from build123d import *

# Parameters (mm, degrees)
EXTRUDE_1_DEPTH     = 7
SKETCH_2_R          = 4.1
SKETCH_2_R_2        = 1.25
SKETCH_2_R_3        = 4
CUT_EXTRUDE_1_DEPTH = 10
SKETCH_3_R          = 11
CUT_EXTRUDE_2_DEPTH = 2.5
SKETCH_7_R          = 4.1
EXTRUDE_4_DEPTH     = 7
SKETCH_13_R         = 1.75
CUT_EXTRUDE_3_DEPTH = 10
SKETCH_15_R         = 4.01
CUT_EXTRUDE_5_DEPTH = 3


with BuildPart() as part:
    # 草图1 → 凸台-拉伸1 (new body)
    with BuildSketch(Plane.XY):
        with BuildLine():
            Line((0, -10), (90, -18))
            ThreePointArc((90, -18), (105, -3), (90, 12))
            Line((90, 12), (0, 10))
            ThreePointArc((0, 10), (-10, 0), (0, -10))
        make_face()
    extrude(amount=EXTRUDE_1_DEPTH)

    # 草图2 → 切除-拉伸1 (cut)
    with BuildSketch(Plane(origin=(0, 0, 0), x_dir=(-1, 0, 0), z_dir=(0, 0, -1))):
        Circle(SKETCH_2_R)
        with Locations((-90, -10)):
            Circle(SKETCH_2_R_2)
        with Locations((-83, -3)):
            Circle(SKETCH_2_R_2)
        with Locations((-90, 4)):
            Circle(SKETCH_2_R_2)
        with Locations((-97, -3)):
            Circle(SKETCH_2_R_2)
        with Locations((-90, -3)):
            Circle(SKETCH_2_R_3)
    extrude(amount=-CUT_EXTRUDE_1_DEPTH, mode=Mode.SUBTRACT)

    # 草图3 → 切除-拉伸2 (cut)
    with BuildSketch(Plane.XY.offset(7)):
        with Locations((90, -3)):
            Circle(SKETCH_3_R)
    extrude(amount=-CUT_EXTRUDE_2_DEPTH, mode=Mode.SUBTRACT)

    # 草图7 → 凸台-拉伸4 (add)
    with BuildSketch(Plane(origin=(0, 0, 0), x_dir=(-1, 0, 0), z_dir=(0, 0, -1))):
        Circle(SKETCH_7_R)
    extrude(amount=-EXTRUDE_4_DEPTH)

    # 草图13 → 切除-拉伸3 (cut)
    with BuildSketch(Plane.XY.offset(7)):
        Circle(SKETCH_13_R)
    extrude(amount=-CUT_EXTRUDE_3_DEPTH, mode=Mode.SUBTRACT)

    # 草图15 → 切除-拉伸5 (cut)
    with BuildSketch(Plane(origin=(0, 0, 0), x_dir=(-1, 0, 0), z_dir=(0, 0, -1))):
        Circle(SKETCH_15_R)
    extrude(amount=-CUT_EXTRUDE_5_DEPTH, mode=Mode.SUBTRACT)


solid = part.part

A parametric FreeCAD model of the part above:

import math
import FreeCAD as App
import Part
import Sketcher
Q = App.Units.Quantity

doc = App.newDocument("Part")
params = doc.addObject("Spreadsheet::Sheet", "Params")
for row, (alias, value) in enumerate([
    ("sketch1_radius", "15 mm"),
    ("sketch1_radius2", "10 mm"),
    ("pad1_length", "7 mm"),
    ("sketch2_diameter", "8 mm"),
    ("sketch2_diameter2", "8.2 mm"),
    ("sketch2_diameter3", "2.5 mm"),
    ("pocket1_length", "10 mm"),
    ("sketch3_diameter", "22 mm"),
    ("pocket2_length", "2.5 mm"),
    ("sketch4_diameter", "8.2 mm"),
    ("pad2_length", "7 mm"),
    ("sketch5_diameter", "3.5 mm"),
    ("pocket3_length", "10 mm"),
    ("sketch6_diameter", "8.02 mm"),
    ("pocket4_length", "3 mm"),
], start=1):
    params.set(f"A{row}", alias)
    params.set(f"B{row}", "=" + value)
    params.setAlias(f"B{row}", alias)

body = doc.addObject("PartDesign::Body", "Body")

# Sketch on XY plane
sketch1 = body.newObject("Sketcher::SketchObject", "Sketch")
sketch1.AttachmentSupport = (doc.getObject("XY_Plane"), [""])
sketch1.MapMode = "FlatFace"
sketch1.addGeometry(Part.LineSegment(App.Vector(0, -10, 0), App.Vector(90, -18, 0)), False)
sketch1.addGeometry(Part.ArcOfCircle(Part.Circle(App.Vector(90, -3, 0), App.Vector(0, 0, 1), 15), math.radians(-90), math.radians(90)), False)
sketch1.addGeometry(Part.LineSegment(App.Vector(90, 12, 0), App.Vector(0, 10, 0)), False)
sketch1.addGeometry(Part.ArcOfCircle(Part.Circle(App.Vector(0, 0, 0), App.Vector(0, 0, 1), 10), math.radians(90), math.radians(270)), False)
sketch1.addConstraint(Sketcher.Constraint("Coincident", 0, 2, 1, 1))
sketch1.addConstraint(Sketcher.Constraint("Coincident", 1, 2, 2, 1))
sketch1.addConstraint(Sketcher.Constraint("Coincident", 2, 2, 3, 1))
sketch1.addConstraint(Sketcher.Constraint("Coincident", 3, 2, 0, 1))
sketch1.addConstraint(Sketcher.Constraint("Coincident", 3, 3, -1, 1))
sketch1.addConstraint(Sketcher.Constraint("PointOnObject", 2, 2, -2))
sketch1.addConstraint(Sketcher.Constraint("PointOnObject", 3, 2, -2))
sketch1.addConstraint(Sketcher.Constraint("Vertical", 1, 3, 0, 2))
sketch1.addConstraint(Sketcher.Constraint("Vertical", 0, 2, 1, 2))
sketch1.addConstraint(Sketcher.Constraint("Radius", 1, Q("15 mm")))
sketch1.addConstraint(Sketcher.Constraint("Radius", 3, Q("10 mm")))
sketch1.addConstraint(Sketcher.Constraint("DistanceX", -1, 1, 1, 3, Q("90 mm")))
sketch1.addConstraint(Sketcher.Constraint("DistanceY", 1, 3, -1, 1, Q("3 mm")))
sketch1.setExpression("Constraints[9]", "Params.sketch1_radius")
sketch1.setExpression("Constraints[10]", "Params.sketch1_radius2")
pad1 = body.newObject("PartDesign::Pad", "Pad")
pad1.Profile = sketch1
pad1.setExpression("Length", "Params.pad1_length")

# Sketch on XY plane
sketch2 = body.newObject("Sketcher::SketchObject", "Sketch001")
sketch2.AttachmentSupport = (doc.getObject("XY_Plane"), [""])
sketch2.MapMode = "FlatFace"
sketch2.addGeometry(Part.Circle(App.Vector(0, 0, 0), App.Vector(0, 0, 1), 4.1), False)
sketch2.addGeometry(Part.Circle(App.Vector(90, -10, 0), App.Vector(0, 0, 1), 1.25), False)
sketch2.addGeometry(Part.Circle(App.Vector(83, -3, 0), App.Vector(0, 0, 1), 1.25), False)
sketch2.addGeometry(Part.Circle(App.Vector(90, 4, 0), App.Vector(0, 0, 1), 1.25), False)
sketch2.addGeometry(Part.Circle(App.Vector(97, -3, 0), App.Vector(0, 0, 1), 1.25), False)
sketch2.addGeometry(Part.Circle(App.Vector(90, -3, 0), App.Vector(0, 0, 1), 4), False)
sketch2.addConstraint(Sketcher.Constraint("Coincident", 0, 3, -1, 1))
sketch2.addConstraint(Sketcher.Constraint("Equal", 1, 2))
sketch2.addConstraint(Sketcher.Constraint("Equal", 2, 3))
sketch2.addConstraint(Sketcher.Constraint("Equal", 3, 4))
sketch2.addConstraint(Sketcher.Constraint("Horizontal", 2, 3, 4, 3))
sketch2.addConstraint(Sketcher.Constraint("Horizontal", 4, 3, 5, 3))
sketch2.addConstraint(Sketcher.Constraint("Vertical", 1, 3, 3, 3))
sketch2.addConstraint(Sketcher.Constraint("Vertical", 3, 3, 5, 3))
sketch2.addConstraint(Sketcher.Constraint("Diameter", 5, Q("8 mm")))
sketch2.addConstraint(Sketcher.Constraint("Diameter", 0, Q("8.2 mm")))
sketch2.addConstraint(Sketcher.Constraint("Diameter", 1, Q("2.5 mm")))
sketch2.addConstraint(Sketcher.Constraint("DistanceX", -1, 1, 1, 3, Q("90 mm")))
sketch2.addConstraint(Sketcher.Constraint("DistanceY", 1, 3, -1, 1, Q("10 mm")))
sketch2.addConstraint(Sketcher.Constraint("DistanceX", -1, 1, 2, 3, Q("83 mm")))
sketch2.addConstraint(Sketcher.Constraint("DistanceY", 2, 3, -1, 1, Q("3 mm")))
sketch2.addConstraint(Sketcher.Constraint("DistanceY", -1, 1, 3, 3, Q("4 mm")))
sketch2.addConstraint(Sketcher.Constraint("DistanceX", -1, 1, 4, 3, Q("97 mm")))
sketch2.setExpression("Constraints[8]", "Params.sketch2_diameter")
sketch2.setExpression("Constraints[9]", "Params.sketch2_diameter2")
sketch2.setExpression("Constraints[10]", "Params.sketch2_diameter3")
pocket1 = body.newObject("PartDesign::Pocket", "Pocket")
pocket1.Profile = sketch2
pocket1.setExpression("Length", "Params.pocket1_length")
pocket1.Reversed = True

# Sketch on XY plane
sketch3 = body.newObject("Sketcher::SketchObject", "Sketch002")
sketch3.AttachmentSupport = (doc.getObject("XY_Plane"), [""])
sketch3.MapMode = "FlatFace"
sketch3.AttachmentOffset = App.Placement(App.Vector(0, 0, 7), App.Rotation())
sketch3.addGeometry(Part.Circle(App.Vector(90, -3, 0), App.Vector(0, 0, 1), 11), False)
sketch3.addConstraint(Sketcher.Constraint("Diameter", 0, Q("22 mm")))
sketch3.addConstraint(Sketcher.Constraint("DistanceX", -1, 1, 0, 3, Q("90 mm")))
sketch3.addConstraint(Sketcher.Constraint("DistanceY", 0, 3, -1, 1, Q("3 mm")))
sketch3.setExpression("Constraints[0]", "Params.sketch3_diameter")
pocket2 = body.newObject("PartDesign::Pocket", "Pocket001")
pocket2.Profile = sketch3
pocket2.setExpression("Length", "Params.pocket2_length")

# Sketch on XY plane
sketch4 = body.newObject("Sketcher::SketchObject", "Sketch003")
sketch4.AttachmentSupport = (doc.getObject("XY_Plane"), [""])
sketch4.MapMode = "FlatFace"
sketch4.addGeometry(Part.Circle(App.Vector(0, 0, 0), App.Vector(0, 0, 1), 4.1), False)
sketch4.addConstraint(Sketcher.Constraint("Coincident", 0, 3, -1, 1))
sketch4.addConstraint(Sketcher.Constraint("Diameter", 0, Q("8.2 mm")))
sketch4.setExpression("Constraints[1]", "Params.sketch4_diameter")
pad2 = body.newObject("PartDesign::Pad", "Pad001")
pad2.Profile = sketch4
pad2.setExpression("Length", "Params.pad2_length")

# Sketch on XY plane
sketch5 = body.newObject("Sketcher::SketchObject", "Sketch004")
sketch5.AttachmentSupport = (doc.getObject("XY_Plane"), [""])
sketch5.MapMode = "FlatFace"
sketch5.AttachmentOffset = App.Placement(App.Vector(0, 0, 7), App.Rotation())
sketch5.addGeometry(Part.Circle(App.Vector(0, 0, 0), App.Vector(0, 0, 1), 1.75), False)
sketch5.addConstraint(Sketcher.Constraint("Coincident", 0, 3, -1, 1))
sketch5.addConstraint(Sketcher.Constraint("Diameter", 0, Q("3.5 mm")))
sketch5.setExpression("Constraints[1]", "Params.sketch5_diameter")
pocket3 = body.newObject("PartDesign::Pocket", "Pocket002")
pocket3.Profile = sketch5
pocket3.setExpression("Length", "Params.pocket3_length")

# Sketch on XY plane
sketch6 = body.newObject("Sketcher::SketchObject", "Sketch005")
sketch6.AttachmentSupport = (doc.getObject("XY_Plane"), [""])
sketch6.MapMode = "FlatFace"
sketch6.addGeometry(Part.Circle(App.Vector(0, 0, 0), App.Vector(0, 0, 1), 4.01), False)
sketch6.addConstraint(Sketcher.Constraint("Coincident", 0, 3, -1, 1))
sketch6.addConstraint(Sketcher.Constraint("Diameter", 0, Q("8.02 mm")))
sketch6.setExpression("Constraints[1]", "Params.sketch6_diameter")
pocket4 = body.newObject("PartDesign::Pocket", "Pocket003")
pocket4.Profile = sketch6
pocket4.setExpression("Length", "Params.pocket4_length")
pocket4.Reversed = True

doc.recompute()
